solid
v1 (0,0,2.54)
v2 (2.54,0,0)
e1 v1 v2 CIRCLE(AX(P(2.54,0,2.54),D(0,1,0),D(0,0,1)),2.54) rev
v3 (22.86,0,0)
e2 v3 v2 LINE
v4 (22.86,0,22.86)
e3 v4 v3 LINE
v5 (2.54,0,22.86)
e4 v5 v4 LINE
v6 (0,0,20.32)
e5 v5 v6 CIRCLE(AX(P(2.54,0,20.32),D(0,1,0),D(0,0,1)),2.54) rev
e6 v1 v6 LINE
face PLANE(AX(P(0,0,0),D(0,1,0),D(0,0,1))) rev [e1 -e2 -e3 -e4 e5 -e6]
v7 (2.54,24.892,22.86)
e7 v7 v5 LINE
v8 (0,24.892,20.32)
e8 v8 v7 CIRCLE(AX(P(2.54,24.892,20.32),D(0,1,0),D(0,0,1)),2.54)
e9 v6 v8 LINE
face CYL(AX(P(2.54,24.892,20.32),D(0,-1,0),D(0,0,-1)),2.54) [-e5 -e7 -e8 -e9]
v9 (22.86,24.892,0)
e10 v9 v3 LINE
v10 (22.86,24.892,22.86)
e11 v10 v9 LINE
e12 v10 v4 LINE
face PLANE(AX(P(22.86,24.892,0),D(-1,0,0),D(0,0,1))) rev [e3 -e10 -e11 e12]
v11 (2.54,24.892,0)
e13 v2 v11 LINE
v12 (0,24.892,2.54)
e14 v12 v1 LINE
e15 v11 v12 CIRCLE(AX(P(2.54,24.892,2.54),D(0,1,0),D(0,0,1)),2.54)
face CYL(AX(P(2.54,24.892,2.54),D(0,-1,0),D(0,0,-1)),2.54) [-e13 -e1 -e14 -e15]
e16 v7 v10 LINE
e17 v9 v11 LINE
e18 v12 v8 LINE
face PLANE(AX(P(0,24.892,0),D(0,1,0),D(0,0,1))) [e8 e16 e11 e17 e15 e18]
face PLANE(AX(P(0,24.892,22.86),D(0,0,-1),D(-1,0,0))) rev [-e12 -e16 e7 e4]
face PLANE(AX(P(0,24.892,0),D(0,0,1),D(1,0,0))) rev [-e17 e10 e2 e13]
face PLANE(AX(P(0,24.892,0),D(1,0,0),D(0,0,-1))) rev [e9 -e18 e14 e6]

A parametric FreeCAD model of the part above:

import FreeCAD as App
import Part
import Sketcher
Q = App.Units.Quantity


def edges_at(feature, points):
    """Names of the edges that pass closest to the given points."""
    edges = feature.Shape.Edges
    near = lambda p: min(range(len(edges)), key=lambda i: edges[i].distToShape(Part.Vertex(*p))[0])
    return sorted({f"Edge{near(p) + 1}" for p in points})


def add_polygon(sketch, points):
    """Adds a closed chain of lines whose ends are joined by coincident constraints."""
    first, n = sketch.GeometryCount, len(points)
    for a, b in zip(points, points[1:] + points[:1]):
        sketch.addGeometry(Part.LineSegment(App.Vector(*a, 0), App.Vector(*b, 0)), False)
    for i in range(n):
        sketch.addConstraint(Sketcher.Constraint("Coincident", first + i, 2, first + (i + 1) % n, 1))

doc = App.newDocument("Part")
params = doc.addObject("Spreadsheet::Sheet", "Params")
for row, (alias, value) in enumerate([
    ("sketch1_width", "0.9 in"),
    ("pad1_length", "0.98 in"),
    ("fillet_radius", "0.1 in"),
], start=1):
    params.set(f"A{row}", alias)
    params.set(f"B{row}", "=" + value)
    params.setAlias(f"B{row}", alias)

body = doc.addObject("PartDesign::Body", "Body")

sketch1 = body.newObject("Sketcher::SketchObject", "Sketch")
sketch1.AttachmentSupport = (doc.getObject("XZ_Plane"), [""])
sketch1.MapMode = "FlatFace"
add_polygon(sketch1, [(0, 0), (0, 22.86), (22.86, 22.86), (22.86, 0)])
sketch1.addConstraint([
    Sketcher.Constraint("Vertical", 0),
    Sketcher.Constraint("Horizontal", 1),
    Sketcher.Constraint("Vertical", 2),
    Sketcher.Constraint("Horizontal", 3),
    Sketcher.Constraint("Coincident", 3, 2, -1, 1),
    Sketcher.Constraint("Equal", 3, 0),
    Sketcher.Constraint("DistanceX", 1, 1, 1, 2, Q("0.9 in")),
])
sketch1.setExpression("Constraints[10]", "Params.sketch1_width")
pad1 = body.newObject("PartDesign::Pad", "Pad")
pad1.Profile = sketch1
pad1.setExpression("Length", "Params.pad1_length")
pad1.Reversed = True
doc.recompute()

fillet = body.newObject("PartDesign::Fillet", "Fillet")
fillet.Base = (pad1, edges_at(pad1, [(0, 12.446, 0), (0, 12.446, 22.86)]))
fillet.setExpression("Radius", "Params.fillet_radius")

doc.recompute()
